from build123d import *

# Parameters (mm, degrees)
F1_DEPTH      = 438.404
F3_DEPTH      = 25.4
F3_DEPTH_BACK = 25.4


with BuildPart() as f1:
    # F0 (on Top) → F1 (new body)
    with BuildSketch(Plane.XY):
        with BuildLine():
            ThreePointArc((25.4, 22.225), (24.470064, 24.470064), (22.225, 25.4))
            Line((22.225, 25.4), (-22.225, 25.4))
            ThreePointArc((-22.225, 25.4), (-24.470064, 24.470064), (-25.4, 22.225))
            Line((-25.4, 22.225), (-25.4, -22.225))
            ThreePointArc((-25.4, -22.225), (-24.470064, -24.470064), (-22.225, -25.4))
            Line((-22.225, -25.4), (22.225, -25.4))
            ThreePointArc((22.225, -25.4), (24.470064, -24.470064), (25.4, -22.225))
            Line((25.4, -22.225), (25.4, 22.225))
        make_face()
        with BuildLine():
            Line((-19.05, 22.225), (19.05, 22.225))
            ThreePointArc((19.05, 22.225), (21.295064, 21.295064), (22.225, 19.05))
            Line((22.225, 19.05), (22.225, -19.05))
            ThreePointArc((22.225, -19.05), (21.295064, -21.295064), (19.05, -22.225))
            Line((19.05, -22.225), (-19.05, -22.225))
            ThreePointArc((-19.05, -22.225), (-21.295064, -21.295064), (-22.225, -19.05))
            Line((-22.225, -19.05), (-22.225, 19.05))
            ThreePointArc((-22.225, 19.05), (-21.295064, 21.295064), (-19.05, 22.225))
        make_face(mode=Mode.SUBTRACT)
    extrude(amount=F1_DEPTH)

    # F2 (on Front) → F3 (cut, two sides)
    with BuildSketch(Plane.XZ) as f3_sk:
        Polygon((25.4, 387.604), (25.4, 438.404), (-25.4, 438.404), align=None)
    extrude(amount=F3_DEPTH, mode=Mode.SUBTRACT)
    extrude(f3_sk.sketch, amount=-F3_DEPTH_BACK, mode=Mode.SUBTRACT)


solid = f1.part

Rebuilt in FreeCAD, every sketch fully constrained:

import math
import FreeCAD as App
import Part
import Sketcher
from FreeCAD import Vector
Q = App.Units.Quantity

doc = App.newDocument("Part")
params = doc.addObject("Spreadsheet::Sheet", "Params")
for row, (alias, value) in enumerate([
    ("sketch1_width", "1.5 in"),
    ("pad1_length", "17.26 in"),
    ("sketch2_width", "2 in"),
], start=1):
    params.set(f"A{row}", alias)
    params.set(f"B{row}", "=" + value)
    params.setAlias(f"B{row}", alias)

body = doc.addObject("PartDesign::Body", "Body")

# Sketch on XY plane
sketch1 = body.newObject("Sketcher::SketchObject", "Sketch")
sketch1.AttachmentSupport = (doc.getObject("XY_Plane"), [""])
sketch1.MapMode = "FlatFace"
sketch1.addGeometry([
    Part.ArcOfCircle(Part.Circle(Vector(22.225, 22.225, 0), Vector(0, 0, 1), 3.175), math.radians(0.000002), math.radians(89.999998)),  # 0
    Part.LineSegment(Vector(22.225, 25.4, 0), Vector(-22.225, 25.4, 0)),  # 1
    Part.ArcOfCircle(Part.Circle(Vector(-22.225, 22.225, 0), Vector(0, 0, 1), 3.175), math.radians(90.000002), math.radians(179.999998)),  # 2
    Part.LineSegment(Vector(-25.4, 22.225, 0), Vector(-25.4, -22.225, 0)),  # 3
    Part.ArcOfCircle(Part.Circle(Vector(-22.225, -22.225, 0), Vector(0, 0, 1), 3.175), math.radians(-179.999998), math.radians(-90.000002)),  # 4
    Part.LineSegment(Vector(-22.225, -25.4, 0), Vector(22.225, -25.4, 0)),  # 5
    Part.ArcOfCircle(Part.Circle(Vector(22.225, -22.225, 0), Vector(0, 0, 1), 3.175), math.radians(-89.999998), math.radians(-0.000002)),  # 6
    Part.LineSegment(Vector(25.4, -22.225, 0), Vector(25.4, 22.225, 0)),  # 7
    Part.ArcOfCircle(Part.Circle(Vector(-19.05, 19.05, 0), Vector(0, 0, 1), 3.175), math.radians(90.000002), math.radians(179.999998)),  # 8
    Part.LineSegment(Vector(-19.05, 22.225, 0), Vector(19.05, 22.225, 0)),  # 9
    Part.ArcOfCircle(Part.Circle(Vector(19.05, 19.05, 0), Vector(0, 0, 1), 3.175), math.radians(0.000002), math.radians(89.999998)),  # 10
    Part.LineSegment(Vector(22.225, 19.05, 0), Vector(22.225, -19.05, 0)),  # 11
    Part.ArcOfCircle(Part.Circle(Vector(19.05, -19.05, 0), Vector(0, 0, 1), 3.175), math.radians(-89.999998), math.radians(-0.000002)),  # 12
    Part.LineSegment(Vector(19.05, -22.225, 0), Vector(-19.05, -22.225, 0)),  # 13
    Part.ArcOfCircle(Part.Circle(Vector(-19.05, -19.05, 0), Vector(0, 0, 1), 3.175), math.radians(-179.999998), math.radians(-90.000002)),  # 14
    Part.LineSegment(Vector(-22.225, -19.05, 0), Vector(-22.225, 19.05, 0)),  # 15
], False)
sketch1.addConstraint([
    Sketcher.Constraint("Tangent", 0, 2, 1, 1),
    Sketcher.Constraint("Tangent", 1, 2, 2, 1),
    Sketcher.Constraint("Tangent", 2, 2, 3, 1),
    Sketcher.Constraint("Tangent", 3, 2, 4, 1),
    Sketcher.Constraint("Tangent", 4, 2, 5, 1),
    Sketcher.Constraint("Tangent", 5, 2, 6, 1),
    Sketcher.Constraint("Tangent", 6, 2, 7, 1),
    Sketcher.Constraint("Tangent", 7, 2, 0, 1),
    Sketcher.Constraint("Tangent", 8, 1, 9, 1),
    Sketcher.Constraint("Tangent", 9, 2, 10, 2),
    Sketcher.Constraint("Tangent", 10, 1, 11, 1),
    Sketcher.Constraint("Tangent", 11, 2, 12, 2),
    Sketcher.Constraint("Tangent", 12, 1, 13, 1),
    Sketcher.Constraint("Tangent", 13, 2, 14, 2),
    Sketcher.Constraint("Tangent", 14, 1, 15, 1),
    Sketcher.Constraint("Tangent", 15, 2, 8, 2),
    Sketcher.Constraint("Horizontal", 1),
    Sketcher.Constraint("Vertical", 3),
    Sketcher.Constraint("Horizontal", 5),
    Sketcher.Constraint("Vertical", 7),
    Sketcher.Constraint("Horizontal", 9),
    Sketcher.Constraint("Vertical", 11),
    Sketcher.Constraint("Horizontal", 13),
    Sketcher.Constraint("Vertical", 15),
    Sketcher.Constraint("Equal", 0, 2),
    Sketcher.Constraint("Equal", 2, 4),
    Sketcher.Constraint("Equal", 4, 6),
    Sketcher.Constraint("Equal", 6, 8),
    Sketcher.Constraint("Equal", 8, 10),
    Sketcher.Constraint("Equal", 10, 12),
    Sketcher.Constraint("Equal", 12, 14),
    Sketcher.Constraint("Symmetric", 0, 3, 4, 3, -1, 1),
    Sketcher.Constraint("Symmetric", 8, 3, 12, 3, -1, 1),
    Sketcher.Constraint("Horizontal", 7, 2, 8, 1),
    Sketcher.Constraint("Vertical", 5, 2, 10, 1),
    Sketcher.Constraint("Equal", 5, 3),
    Sketcher.Constraint("DistanceX", 9, 1, 9, 2, Q("1.5 in")),
    Sketcher.Constraint("DistanceY", -1, 1, 0, 2, Q("1 in")),
])
sketch1.setExpression("Constraints[36]", "Params.sketch1_width")
pad1 = body.newObject("PartDesign::Pad", "Pad")
pad1.Profile = sketch1
pad1.setExpression("Length", "Params.pad1_length")

# Sketch on XZ plane
sketch2 = body.newObject("Sketcher::SketchObject", "Sketch001")
sketch2.AttachmentSupport = (doc.getObject("XZ_Plane"), [""])
sketch2.MapMode = "FlatFace"
sketch2.addGeometry([
    Part.LineSegment(Vector(25.4, 387.604, 0), Vector(25.4, 438.404, 0)),
    Part.LineSegment(Vector(25.4, 438.404, 0), Vector(-25.4, 438.404, 0)),
    Part.LineSegment(Vector(-25.4, 438.404, 0), Vector(25.4, 387.604, 0)),
], False)
sketch2.addConstraint([
    Sketcher.Constraint("Coincident", 0, 2, 1, 1),
    Sketcher.Constraint("Coincident", 1, 2, 2, 1),
    Sketcher.Constraint("Coincident", 2, 2, 0, 1),
    Sketcher.Constraint("Vertical", 0),
    Sketcher.Constraint("Horizontal", 1),
    Sketcher.Constraint("Equal", 1, 0),
    Sketcher.Constraint("DistanceX", 1, 2, 1, 1, Q("2 in")),
    Sketcher.Constraint("DistanceX", -1, 1, 0, 2, Q("1 in")),
    Sketcher.Constraint("DistanceY", -1, 1, 0, 2, Q("17.26 in")),
])
sketch2.setExpression("Constraints[6]", "Params.sketch2_width")
pocket1 = body.newObject("PartDesign::Pocket", "Pocket")
pocket1.Profile = sketch2
pocket1.Type = "ThroughAll"
pocket1.Midplane = True

doc.recompute()
